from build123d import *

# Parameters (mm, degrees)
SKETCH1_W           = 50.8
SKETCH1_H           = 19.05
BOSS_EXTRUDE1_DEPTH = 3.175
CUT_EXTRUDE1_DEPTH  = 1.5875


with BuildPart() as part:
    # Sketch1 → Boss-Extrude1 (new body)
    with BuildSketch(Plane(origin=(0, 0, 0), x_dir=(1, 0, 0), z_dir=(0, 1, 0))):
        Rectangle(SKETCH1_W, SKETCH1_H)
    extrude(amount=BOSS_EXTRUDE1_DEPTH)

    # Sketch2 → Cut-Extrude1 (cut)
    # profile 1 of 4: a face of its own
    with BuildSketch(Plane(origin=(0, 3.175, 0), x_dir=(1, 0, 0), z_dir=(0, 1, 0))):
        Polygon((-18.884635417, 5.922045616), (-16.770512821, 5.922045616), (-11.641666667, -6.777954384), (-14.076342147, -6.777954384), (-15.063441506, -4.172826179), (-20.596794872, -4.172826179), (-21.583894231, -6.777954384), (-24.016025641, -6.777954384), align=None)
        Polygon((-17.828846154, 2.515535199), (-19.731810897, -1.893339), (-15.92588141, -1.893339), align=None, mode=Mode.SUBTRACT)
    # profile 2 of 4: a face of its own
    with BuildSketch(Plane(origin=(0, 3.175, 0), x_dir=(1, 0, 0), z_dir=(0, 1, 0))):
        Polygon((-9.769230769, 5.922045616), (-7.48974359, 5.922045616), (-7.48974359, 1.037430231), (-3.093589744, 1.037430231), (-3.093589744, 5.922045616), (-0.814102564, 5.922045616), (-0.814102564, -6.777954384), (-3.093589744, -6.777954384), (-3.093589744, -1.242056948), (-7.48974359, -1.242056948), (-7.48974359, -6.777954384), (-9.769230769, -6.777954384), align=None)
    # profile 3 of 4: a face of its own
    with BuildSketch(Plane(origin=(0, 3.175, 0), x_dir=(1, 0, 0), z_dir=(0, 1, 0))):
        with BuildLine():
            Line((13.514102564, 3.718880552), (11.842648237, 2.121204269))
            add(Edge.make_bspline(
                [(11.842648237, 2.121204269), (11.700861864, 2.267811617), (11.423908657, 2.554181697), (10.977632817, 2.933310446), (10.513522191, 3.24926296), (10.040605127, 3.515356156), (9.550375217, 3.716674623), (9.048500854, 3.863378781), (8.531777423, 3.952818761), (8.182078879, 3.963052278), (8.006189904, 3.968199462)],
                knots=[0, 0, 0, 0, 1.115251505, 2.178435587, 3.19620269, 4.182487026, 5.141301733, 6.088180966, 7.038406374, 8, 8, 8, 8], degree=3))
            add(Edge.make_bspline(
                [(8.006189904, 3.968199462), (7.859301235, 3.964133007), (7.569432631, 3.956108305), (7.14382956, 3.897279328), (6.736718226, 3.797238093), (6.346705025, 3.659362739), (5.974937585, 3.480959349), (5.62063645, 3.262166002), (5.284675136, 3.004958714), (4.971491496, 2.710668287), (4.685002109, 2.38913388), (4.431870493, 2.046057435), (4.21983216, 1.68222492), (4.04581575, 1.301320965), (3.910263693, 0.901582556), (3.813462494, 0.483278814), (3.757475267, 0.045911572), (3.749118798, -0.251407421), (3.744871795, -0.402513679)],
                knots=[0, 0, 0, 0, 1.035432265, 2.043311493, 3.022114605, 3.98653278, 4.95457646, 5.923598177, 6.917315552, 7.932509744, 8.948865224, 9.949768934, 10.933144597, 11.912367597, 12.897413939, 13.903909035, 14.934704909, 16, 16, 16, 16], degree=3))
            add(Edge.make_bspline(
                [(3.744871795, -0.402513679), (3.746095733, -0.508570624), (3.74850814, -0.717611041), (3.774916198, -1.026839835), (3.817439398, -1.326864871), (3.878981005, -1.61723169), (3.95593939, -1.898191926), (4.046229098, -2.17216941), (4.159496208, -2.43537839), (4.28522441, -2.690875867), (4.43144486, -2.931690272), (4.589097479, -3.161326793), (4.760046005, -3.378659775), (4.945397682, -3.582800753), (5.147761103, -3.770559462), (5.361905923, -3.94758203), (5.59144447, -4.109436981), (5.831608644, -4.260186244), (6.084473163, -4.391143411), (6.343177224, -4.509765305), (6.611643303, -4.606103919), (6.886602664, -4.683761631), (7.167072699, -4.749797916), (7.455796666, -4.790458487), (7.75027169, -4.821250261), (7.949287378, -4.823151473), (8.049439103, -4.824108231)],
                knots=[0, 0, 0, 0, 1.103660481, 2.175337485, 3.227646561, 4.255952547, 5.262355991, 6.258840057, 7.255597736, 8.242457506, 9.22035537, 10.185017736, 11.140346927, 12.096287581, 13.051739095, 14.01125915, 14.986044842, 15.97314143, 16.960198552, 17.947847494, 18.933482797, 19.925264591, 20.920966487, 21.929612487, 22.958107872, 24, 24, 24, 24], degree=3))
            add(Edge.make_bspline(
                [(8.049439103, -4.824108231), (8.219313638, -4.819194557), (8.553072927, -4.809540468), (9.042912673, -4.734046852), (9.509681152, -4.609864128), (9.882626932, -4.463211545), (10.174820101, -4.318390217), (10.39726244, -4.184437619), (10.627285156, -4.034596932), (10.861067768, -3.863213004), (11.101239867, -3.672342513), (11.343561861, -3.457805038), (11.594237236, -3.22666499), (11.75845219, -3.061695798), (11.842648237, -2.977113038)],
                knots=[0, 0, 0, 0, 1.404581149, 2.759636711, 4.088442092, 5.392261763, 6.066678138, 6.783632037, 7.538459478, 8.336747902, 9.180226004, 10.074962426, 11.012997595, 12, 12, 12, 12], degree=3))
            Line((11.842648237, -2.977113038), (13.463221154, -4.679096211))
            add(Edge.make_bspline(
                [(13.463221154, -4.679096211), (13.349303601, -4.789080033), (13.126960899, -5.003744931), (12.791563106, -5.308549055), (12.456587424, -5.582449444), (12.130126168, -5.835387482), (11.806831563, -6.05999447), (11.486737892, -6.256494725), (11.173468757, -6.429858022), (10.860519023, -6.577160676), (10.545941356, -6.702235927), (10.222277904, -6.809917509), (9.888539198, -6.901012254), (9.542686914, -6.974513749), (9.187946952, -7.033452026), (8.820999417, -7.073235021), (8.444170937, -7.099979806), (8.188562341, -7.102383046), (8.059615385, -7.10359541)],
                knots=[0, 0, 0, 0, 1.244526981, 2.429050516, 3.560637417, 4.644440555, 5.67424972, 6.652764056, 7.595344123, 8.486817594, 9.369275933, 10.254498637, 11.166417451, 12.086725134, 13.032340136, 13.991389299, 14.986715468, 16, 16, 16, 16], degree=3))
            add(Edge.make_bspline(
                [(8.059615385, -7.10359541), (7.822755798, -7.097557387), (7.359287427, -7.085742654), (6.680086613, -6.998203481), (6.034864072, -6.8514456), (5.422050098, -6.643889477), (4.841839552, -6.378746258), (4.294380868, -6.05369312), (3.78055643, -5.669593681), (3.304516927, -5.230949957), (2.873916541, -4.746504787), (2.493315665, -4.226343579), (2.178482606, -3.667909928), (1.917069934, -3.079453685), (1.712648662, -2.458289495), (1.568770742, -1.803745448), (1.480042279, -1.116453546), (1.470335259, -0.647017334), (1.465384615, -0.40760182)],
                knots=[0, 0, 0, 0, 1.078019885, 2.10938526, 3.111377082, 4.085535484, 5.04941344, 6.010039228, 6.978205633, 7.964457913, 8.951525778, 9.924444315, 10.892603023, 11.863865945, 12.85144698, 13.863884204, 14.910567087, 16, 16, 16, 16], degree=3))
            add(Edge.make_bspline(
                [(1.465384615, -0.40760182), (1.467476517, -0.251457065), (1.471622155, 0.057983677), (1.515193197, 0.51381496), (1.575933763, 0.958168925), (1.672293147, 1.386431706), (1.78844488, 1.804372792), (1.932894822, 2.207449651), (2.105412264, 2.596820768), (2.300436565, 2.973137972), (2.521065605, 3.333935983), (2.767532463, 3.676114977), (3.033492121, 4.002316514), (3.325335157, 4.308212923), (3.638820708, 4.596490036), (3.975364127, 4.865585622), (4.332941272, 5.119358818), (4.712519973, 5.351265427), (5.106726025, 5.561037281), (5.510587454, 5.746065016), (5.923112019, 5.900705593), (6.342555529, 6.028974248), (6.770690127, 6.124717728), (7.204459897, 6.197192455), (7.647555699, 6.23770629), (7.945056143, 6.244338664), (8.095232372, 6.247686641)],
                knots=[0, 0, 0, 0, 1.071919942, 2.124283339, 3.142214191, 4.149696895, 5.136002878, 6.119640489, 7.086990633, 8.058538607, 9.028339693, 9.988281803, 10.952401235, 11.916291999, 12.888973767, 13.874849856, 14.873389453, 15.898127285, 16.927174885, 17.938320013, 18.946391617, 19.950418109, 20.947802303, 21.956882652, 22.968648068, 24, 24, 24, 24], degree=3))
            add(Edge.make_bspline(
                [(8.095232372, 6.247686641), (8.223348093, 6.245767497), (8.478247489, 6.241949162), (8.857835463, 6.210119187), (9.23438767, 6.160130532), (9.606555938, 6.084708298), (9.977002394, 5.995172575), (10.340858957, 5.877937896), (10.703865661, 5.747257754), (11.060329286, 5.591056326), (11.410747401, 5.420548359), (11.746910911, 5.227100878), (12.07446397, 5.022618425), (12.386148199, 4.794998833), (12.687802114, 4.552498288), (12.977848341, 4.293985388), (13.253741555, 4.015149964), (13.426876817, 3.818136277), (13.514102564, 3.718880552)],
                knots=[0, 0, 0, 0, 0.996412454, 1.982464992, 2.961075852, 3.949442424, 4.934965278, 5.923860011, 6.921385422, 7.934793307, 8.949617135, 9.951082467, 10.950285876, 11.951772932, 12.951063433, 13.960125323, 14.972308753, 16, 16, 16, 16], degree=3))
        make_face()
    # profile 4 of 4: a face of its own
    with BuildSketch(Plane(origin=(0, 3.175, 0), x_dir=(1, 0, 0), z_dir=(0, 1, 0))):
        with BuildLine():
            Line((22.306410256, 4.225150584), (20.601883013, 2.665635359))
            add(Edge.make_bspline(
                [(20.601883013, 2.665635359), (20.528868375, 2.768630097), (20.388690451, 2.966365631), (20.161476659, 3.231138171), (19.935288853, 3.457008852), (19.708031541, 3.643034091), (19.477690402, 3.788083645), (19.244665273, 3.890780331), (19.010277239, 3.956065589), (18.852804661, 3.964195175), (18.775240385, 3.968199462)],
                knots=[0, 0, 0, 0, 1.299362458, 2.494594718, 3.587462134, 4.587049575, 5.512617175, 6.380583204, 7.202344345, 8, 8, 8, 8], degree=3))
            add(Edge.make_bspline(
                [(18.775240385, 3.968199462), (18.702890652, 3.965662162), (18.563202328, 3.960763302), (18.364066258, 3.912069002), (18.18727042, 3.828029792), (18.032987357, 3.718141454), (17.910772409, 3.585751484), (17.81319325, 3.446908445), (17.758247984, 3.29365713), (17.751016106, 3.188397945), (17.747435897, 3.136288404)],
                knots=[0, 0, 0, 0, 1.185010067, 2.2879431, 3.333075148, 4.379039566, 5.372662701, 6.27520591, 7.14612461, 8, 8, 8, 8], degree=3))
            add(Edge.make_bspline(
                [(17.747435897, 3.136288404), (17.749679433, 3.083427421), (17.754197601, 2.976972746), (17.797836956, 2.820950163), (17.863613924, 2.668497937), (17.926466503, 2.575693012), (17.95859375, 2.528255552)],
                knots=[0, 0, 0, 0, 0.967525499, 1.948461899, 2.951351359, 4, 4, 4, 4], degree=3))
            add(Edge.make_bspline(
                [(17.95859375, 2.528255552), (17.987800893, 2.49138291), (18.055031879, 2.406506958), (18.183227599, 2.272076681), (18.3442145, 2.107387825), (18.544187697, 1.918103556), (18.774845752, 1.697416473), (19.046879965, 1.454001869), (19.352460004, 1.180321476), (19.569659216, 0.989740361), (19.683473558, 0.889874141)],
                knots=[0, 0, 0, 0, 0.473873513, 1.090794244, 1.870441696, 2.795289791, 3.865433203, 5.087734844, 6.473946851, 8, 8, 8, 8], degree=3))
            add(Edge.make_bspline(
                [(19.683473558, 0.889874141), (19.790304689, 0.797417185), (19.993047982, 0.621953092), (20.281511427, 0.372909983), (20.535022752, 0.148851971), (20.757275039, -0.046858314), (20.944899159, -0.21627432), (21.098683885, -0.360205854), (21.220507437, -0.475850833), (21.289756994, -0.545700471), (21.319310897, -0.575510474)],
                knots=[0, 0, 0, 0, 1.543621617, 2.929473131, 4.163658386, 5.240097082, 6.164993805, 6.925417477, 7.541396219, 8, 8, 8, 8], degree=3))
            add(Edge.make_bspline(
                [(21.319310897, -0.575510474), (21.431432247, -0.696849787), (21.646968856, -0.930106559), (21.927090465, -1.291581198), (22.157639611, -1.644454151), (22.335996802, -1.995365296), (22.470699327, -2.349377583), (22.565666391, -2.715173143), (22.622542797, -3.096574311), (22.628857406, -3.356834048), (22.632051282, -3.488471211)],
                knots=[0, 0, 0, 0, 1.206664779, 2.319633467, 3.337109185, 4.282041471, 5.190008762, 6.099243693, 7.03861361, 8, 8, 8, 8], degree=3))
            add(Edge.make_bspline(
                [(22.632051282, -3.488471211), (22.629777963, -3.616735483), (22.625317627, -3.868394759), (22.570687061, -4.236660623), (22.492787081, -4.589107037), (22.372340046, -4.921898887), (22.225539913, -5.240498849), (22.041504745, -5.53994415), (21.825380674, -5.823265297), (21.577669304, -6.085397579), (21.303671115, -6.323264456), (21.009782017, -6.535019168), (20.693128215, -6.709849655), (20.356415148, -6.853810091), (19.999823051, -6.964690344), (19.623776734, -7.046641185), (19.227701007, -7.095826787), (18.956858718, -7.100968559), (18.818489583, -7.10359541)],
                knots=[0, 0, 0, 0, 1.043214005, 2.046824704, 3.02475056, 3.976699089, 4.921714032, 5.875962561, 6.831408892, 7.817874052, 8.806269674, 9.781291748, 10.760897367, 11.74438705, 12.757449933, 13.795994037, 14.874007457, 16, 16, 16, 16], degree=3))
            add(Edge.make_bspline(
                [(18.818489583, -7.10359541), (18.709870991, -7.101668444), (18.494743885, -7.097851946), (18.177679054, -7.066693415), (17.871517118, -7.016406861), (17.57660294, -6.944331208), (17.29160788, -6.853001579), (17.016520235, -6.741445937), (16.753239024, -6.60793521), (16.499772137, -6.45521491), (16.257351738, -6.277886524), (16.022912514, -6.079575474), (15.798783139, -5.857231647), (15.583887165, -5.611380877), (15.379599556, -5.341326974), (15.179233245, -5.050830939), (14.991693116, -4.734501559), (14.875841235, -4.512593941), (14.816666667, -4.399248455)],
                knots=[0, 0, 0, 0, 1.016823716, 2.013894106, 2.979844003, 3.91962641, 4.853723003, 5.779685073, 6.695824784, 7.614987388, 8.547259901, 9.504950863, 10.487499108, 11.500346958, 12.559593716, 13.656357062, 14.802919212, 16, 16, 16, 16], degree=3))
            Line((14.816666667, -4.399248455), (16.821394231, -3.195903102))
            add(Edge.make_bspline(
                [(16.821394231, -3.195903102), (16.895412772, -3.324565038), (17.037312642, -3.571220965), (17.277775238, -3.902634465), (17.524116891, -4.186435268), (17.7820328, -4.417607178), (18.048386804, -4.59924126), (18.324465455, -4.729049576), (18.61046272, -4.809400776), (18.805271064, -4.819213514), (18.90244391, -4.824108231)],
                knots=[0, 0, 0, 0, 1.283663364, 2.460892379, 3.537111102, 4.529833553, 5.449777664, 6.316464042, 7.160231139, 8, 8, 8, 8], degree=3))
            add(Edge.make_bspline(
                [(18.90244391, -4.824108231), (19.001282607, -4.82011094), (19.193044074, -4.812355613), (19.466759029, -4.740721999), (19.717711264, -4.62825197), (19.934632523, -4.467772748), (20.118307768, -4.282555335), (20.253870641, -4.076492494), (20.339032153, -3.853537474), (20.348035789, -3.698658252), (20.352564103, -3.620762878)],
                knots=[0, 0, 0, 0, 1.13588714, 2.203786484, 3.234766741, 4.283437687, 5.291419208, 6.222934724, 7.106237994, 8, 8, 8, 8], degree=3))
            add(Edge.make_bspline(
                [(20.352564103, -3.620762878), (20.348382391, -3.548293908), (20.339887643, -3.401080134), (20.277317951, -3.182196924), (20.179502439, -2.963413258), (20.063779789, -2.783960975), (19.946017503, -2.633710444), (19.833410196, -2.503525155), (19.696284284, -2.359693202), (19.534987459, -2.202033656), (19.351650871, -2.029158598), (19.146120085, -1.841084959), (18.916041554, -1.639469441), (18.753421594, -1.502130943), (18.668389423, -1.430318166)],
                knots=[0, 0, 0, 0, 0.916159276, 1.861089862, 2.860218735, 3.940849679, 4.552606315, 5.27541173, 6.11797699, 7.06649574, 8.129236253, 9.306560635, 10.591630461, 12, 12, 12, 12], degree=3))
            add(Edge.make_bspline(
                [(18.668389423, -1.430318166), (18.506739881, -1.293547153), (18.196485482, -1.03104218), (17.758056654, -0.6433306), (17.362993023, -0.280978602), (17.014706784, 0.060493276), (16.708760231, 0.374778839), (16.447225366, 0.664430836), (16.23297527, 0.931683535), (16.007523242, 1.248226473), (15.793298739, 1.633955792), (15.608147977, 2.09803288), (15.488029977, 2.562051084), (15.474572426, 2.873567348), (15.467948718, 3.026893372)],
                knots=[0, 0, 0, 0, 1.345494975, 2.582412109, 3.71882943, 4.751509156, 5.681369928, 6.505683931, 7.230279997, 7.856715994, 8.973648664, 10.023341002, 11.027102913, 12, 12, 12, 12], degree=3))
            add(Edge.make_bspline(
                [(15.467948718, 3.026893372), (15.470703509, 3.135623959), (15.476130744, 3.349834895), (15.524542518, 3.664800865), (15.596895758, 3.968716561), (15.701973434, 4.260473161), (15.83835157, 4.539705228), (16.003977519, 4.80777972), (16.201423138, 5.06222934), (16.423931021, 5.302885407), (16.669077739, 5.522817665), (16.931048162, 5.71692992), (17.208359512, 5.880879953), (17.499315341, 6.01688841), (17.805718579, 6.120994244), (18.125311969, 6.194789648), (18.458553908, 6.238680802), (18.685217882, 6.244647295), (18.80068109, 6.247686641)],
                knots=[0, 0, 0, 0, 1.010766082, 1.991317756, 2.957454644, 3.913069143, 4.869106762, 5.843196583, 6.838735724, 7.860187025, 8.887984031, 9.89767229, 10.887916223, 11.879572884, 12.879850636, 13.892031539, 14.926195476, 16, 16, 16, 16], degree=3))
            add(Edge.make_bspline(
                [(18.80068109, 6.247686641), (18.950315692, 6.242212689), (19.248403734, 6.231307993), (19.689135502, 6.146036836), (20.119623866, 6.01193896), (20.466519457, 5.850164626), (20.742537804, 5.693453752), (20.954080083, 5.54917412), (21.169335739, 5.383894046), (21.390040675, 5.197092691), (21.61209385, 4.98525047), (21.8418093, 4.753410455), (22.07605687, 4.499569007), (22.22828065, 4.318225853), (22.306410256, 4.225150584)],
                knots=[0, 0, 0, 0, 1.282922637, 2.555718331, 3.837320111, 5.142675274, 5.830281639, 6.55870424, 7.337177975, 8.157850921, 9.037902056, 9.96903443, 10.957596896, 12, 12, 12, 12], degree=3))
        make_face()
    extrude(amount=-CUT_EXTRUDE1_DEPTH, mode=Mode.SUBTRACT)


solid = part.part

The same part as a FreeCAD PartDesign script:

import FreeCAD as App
import Part
import Sketcher

V = App.Vector
Q = App.Units.Quantity

doc = App.newDocument("Part")
body = doc.addObject("PartDesign::Body", "Body")

# Sketch on XZ plane
sketch1 = body.newObject("Sketcher::SketchObject", "Sketch")
sketch1.AttachmentSupport = (doc.getObject("XZ_Plane"), [""])
sketch1.MapMode = "FlatFace"
sketch1.addGeometry([
    Part.LineSegment(V(-25.4, -9.525, 0), V(-25.4, 9.525, 0)),
    Part.LineSegment(V(-25.4, 9.525, 0), V(25.4, 9.525, 0)),
    Part.LineSegment(V(25.4, 9.525, 0), V(25.4, -9.525, 0)),
    Part.LineSegment(V(25.4, -9.525, 0), V(-25.4, -9.525, 0)),
], False)
sketch1.addConstraint([
    Sketcher.Constraint("Coincident", 0, 2, 1, 1),
    Sketcher.Constraint("Coincident", 1, 2, 2, 1),
    Sketcher.Constraint("Coincident", 2, 2, 3, 1),
    Sketcher.Constraint("Coincident", 3, 2, 0, 1),
    Sketcher.Constraint("Vertical", 0),
    Sketcher.Constraint("Horizontal", 1),
    Sketcher.Constraint("Vertical", 2),
    Sketcher.Constraint("Horizontal", 3),
    Sketcher.Constraint("Symmetric", 0, 2, 2, 2, -1, 1),
    Sketcher.Constraint("DistanceX", 1, 1, 1, 2, Q("2 in")),
    Sketcher.Constraint("DistanceY", 0, 1, 0, 2, Q("0.75 in")),
])
pad1 = body.newObject("PartDesign::Pad", "Pad")
pad1.Profile = sketch1
pad1.Length = Q("0.125 in")
pad1.Reversed = True

# Sketch on XZ plane
sketch2 = body.newObject("Sketcher::SketchObject", "Sketch001")
sketch2.AttachmentSupport = (doc.getObject("XZ_Plane"), [""])
sketch2.MapMode = "FlatFace"
sketch2.AttachmentOffset = App.Placement(V(0, 0, -0.125 * 25.4), App.Rotation())
sketch2.addGeometry([
    Part.LineSegment(V(-16.770513, -5.922046, 0), V(-18.884635, -5.922046, 0)),  # 0
    Part.LineSegment(V(-18.884635, -5.922046, 0), V(-24.016026, 6.777954, 0)),  # 1
    Part.LineSegment(V(-24.016026, 6.777954, 0), V(-21.583894, 6.777954, 0)),  # 2
    Part.LineSegment(V(-21.583894, 6.777954, 0), V(-20.596795, 4.172826, 0)),  # 3
    Part.LineSegment(V(-20.596795, 4.172826, 0), V(-15.063442, 4.172826, 0)),  # 4
    Part.LineSegment(V(-15.063442, 4.172826, 0), V(-14.076342, 6.777954, 0)),  # 5
    Part.LineSegment(V(-14.076342, 6.777954, 0), V(-11.641667, 6.777954, 0)),  # 6
    Part.LineSegment(V(-11.641667, 6.777954, 0), V(-16.770513, -5.922046, 0)),  # 7
    Part.LineSegment(V(-17.828846, -2.515535, 0), V(-15.925881, 1.893339, 0)),  # 8
    Part.LineSegment(V(-15.925881, 1.893339, 0), V(-19.731811, 1.893339, 0)),  # 9
    Part.LineSegment(V(-19.731811, 1.893339, 0), V(-17.828846, -2.515535, 0)),  # 10
    Part.LineSegment(V(-7.489744, -5.922046, 0), V(-9.769231, -5.922046, 0)),  # 11
    Part.LineSegment(V(-9.769231, -5.922046, 0), V(-9.769231, 6.777954, 0)),  # 12
    Part.LineSegment(V(-9.769231, 6.777954, 0), V(-7.489744, 6.777954, 0)),  # 13
    Part.LineSegment(V(-7.489744, 6.777954, 0), V(-7.489744, 1.242057, 0)),  # 14
    Part.LineSegment(V(-7.489744, 1.242057, 0), V(-3.09359, 1.242057, 0)),  # 15
    Part.LineSegment(V(-3.09359, 1.242057, 0), V(-3.09359, 6.777954, 0)),  # 16
    Part.LineSegment(V(-3.09359, 6.777954, 0), V(-0.814103, 6.777954, 0)),  # 17
    Part.LineSegment(V(-0.814103, 6.777954, 0), V(-0.814103, -5.922046, 0)),  # 18
    Part.LineSegment(V(-0.814103, -5.922046, 0), V(-3.09359, -5.922046, 0)),  # 19
    Part.LineSegment(V(-3.09359, -5.922046, 0), V(-3.09359, -1.03743, 0)),  # 20
    Part.LineSegment(V(-3.09359, -1.03743, 0), V(-7.489744, -1.03743, 0)),  # 21
    Part.LineSegment(V(-7.489744, -1.03743, 0), V(-7.489744, -5.922046, 0)),  # 22
    Part.LineSegment(V(11.842648, -2.121204, 0), V(13.514103, -3.718881, 0)),  # 23
    Part.BSplineCurve([V(8.095232, -6.247687, 0), V(8.223348, -6.245767, 0), V(8.478247, -6.241949, 0), V(8.857835, -6.210119, 0), V(9.234388, -6.160131, 0), V(9.606556, -6.084708, 0), V(9.977002, -5.995173, 0), V(10.340859, -5.877938, 0), V(10.703866, -5.747258, 0), V(11.060329, -5.591056, 0), V(11.410747, -5.420548, 0), V(11.746911, -5.227101, 0), V(12.074464, -5.022618, 0), V(12.386148, -4.794999, 0), V(12.687802, -4.552498, 0), V(12.977848, -4.293985, 0), V(13.253742, -4.01515, 0), V(13.426877, -3.818136, 0), V(13.514103, -3.718881, 0)], [4, 1, 1, 1, 1, 1, 1, 1, 1, 1, 1, 1, 1, 1, 1, 1, 4], [0, 0.996412454, 1.982464992, 2.961075852, 3.949442424, 4.934965278, 5.923860011, 6.921385422, 7.934793307, 8.949617135, 9.951082467, 10.950285876, 11.951772932, 12.951063433, 13.960125323, 14.972308753, 16], False, 3, [1, 1, 1, 1, 1, 1, 1, 1, 1, 1, 1, 1, 1, 1, 1, 1, 1, 1, 1], False),  # 24
    Part.BSplineCurve([V(1.465385, 0.407602, 0), V(1.467477, 0.251457, 0), V(1.471622, -0.057984, 0), V(1.515193, -0.513815, 0), V(1.575934, -0.958169, 0), V(1.672293, -1.386432, 0), V(1.788445, -1.804373, 0), V(1.932895, -2.20745, 0), V(2.105412, -2.596821, 0), V(2.300437, -2.973138, 0), V(2.521066, -3.333936, 0), V(2.767532, -3.676115, 0), V(3.033492, -4.002317, 0), V(3.325335, -4.308213, 0), V(3.638821, -4.59649, 0), V(3.975364, -4.865586, 0), V(4.332941, -5.119359, 0), V(4.71252, -5.351265, 0), V(5.106726, -5.561037, 0), V(5.510587, -5.746065, 0), V(5.923112, -5.900706, 0), V(6.342556, -6.028974, 0), V(6.77069, -6.124718, 0), V(7.20446, -6.197192, 0), V(7.647556, -6.237706, 0), V(7.945056, -6.244339, 0), V(8.095232, -6.247687, 0)], [4, 1, 1, 1, 1, 1, 1, 1, 1, 1, 1, 1, 1, 1, 1, 1, 1, 1, 1, 1, 1, 1, 1, 1, 4], [0, 1.071919942, 2.124283339, 3.142214191, 4.149696895, 5.136002878, 6.119640489, 7.086990633, 8.058538607, 9.028339693, 9.988281803, 10.952401235, 11.916291999, 12.888973767, 13.874849856, 14.873389453, 15.898127285, 16.927174885, 17.938320013, 18.946391617, 19.950418109, 20.947802303, 21.956882652, 22.968648068, 24], False, 3, [1, 1, 1, 1, 1, 1, 1, 1, 1, 1, 1, 1, 1, 1, 1, 1, 1, 1, 1, 1, 1, 1, 1, 1, 1, 1, 1], False),  # 25
    Part.BSplineCurve([V(8.059615, 7.103595, 0), V(7.822756, 7.097557, 0), V(7.359287, 7.085743, 0), V(6.680087, 6.998203, 0), V(6.034864, 6.851446, 0), V(5.42205, 6.643889, 0), V(4.84184, 6.378746, 0), V(4.294381, 6.053693, 0), V(3.780556, 5.669594, 0), V(3.304517, 5.23095, 0), V(2.873917, 4.746505, 0), V(2.493316, 4.226344, 0), V(2.178483, 3.66791, 0), V(1.91707, 3.079454, 0), V(1.712649, 2.458289, 0), V(1.568771, 1.803745, 0), V(1.480042, 1.116454, 0), V(1.470335, 0.647017, 0), V(1.465385, 0.407602, 0)], [4, 1, 1, 1, 1, 1, 1, 1, 1, 1, 1, 1, 1, 1, 1, 1, 4], [0, 1.078019885, 2.10938526, 3.111377082, 4.085535484, 5.04941344, 6.010039228, 6.978205633, 7.964457913, 8.951525778, 9.924444315, 10.892603023, 11.863865945, 12.85144698, 13.863884204, 14.910567087, 16], False, 3, [1, 1, 1, 1, 1, 1, 1, 1, 1, 1, 1, 1, 1, 1, 1, 1, 1, 1, 1], False),  # 26
    Part.BSplineCurve([V(13.463221, 4.679096, 0), V(13.349304, 4.78908, 0), V(13.126961, 5.003745, 0), V(12.791563, 5.308549, 0), V(12.456587, 5.582449, 0), V(12.130126, 5.835387, 0), V(11.806832, 6.059994, 0), V(11.486738, 6.256495, 0), V(11.173469, 6.429858, 0), V(10.860519, 6.577161, 0), V(10.545941, 6.702236, 0), V(10.222278, 6.809918, 0), V(9.888539, 6.901012, 0), V(9.542687, 6.974514, 0), V(9.187947, 7.033452, 0), V(8.820999, 7.073235, 0), V(8.444171, 7.09998, 0), V(8.188562, 7.102383, 0), V(8.059615, 7.103595, 0)], [4, 1, 1, 1, 1, 1, 1, 1, 1, 1, 1, 1, 1, 1, 1, 1, 4], [0, 1.244526981, 2.429050516, 3.560637417, 4.644440555, 5.67424972, 6.652764056, 7.595344123, 8.486817594, 9.369275933, 10.254498637, 11.166417451, 12.086725134, 13.032340136, 13.991389299, 14.986715468, 16], False, 3, [1, 1, 1, 1, 1, 1, 1, 1, 1, 1, 1, 1, 1, 1, 1, 1, 1, 1, 1], False),  # 27
    Part.LineSegment(V(13.463221, 4.679096, 0), V(11.842648, 2.977113, 0)),  # 28
    Part.BSplineCurve([V(8.049439, 4.824108, 0), V(8.219314, 4.819195, 0), V(8.553073, 4.80954, 0), V(9.042913, 4.734047, 0), V(9.509681, 4.609864, 0), V(9.882627, 4.463212, 0), V(10.17482, 4.31839, 0), V(10.397262, 4.184438, 0), V(10.627285, 4.034597, 0), V(10.861068, 3.863213, 0), V(11.10124, 3.672343, 0), V(11.343562, 3.457805, 0), V(11.594237, 3.226665, 0), V(11.758452, 3.061696, 0), V(11.842648, 2.977113, 0)], [4, 1, 1, 1, 1, 1, 1, 1, 1, 1, 1, 1, 4], [0, 1.404581149, 2.759636711, 4.088442092, 5.392261763, 6.066678138, 6.783632037, 7.538459478, 8.336747902, 9.180226004, 10.074962426, 11.012997595, 12], False, 3, [1, 1, 1, 1, 1, 1, 1, 1, 1, 1, 1, 1, 1, 1, 1], False),  # 29
    Part.BSplineCurve([V(3.744872, 0.402514, 0), V(3.746096, 0.508571, 0), V(3.748508, 0.717611, 0), V(3.774916, 1.02684, 0), V(3.817439, 1.326865, 0), V(3.878981, 1.617232, 0), V(3.955939, 1.898192, 0), V(4.046229, 2.172169, 0), V(4.159496, 2.435378, 0), V(4.285224, 2.690876, 0), V(4.431445, 2.93169, 0), V(4.589097, 3.161327, 0), V(4.760046, 3.37866, 0), V(4.945398, 3.582801, 0), V(5.147761, 3.770559, 0), V(5.361906, 3.947582, 0), V(5.591444, 4.109437, 0), V(5.831609, 4.260186, 0), V(6.084473, 4.391143, 0), V(6.343177, 4.509765, 0), V(6.611643, 4.606104, 0), V(6.886603, 4.683762, 0), V(7.167073, 4.749798, 0), V(7.455797, 4.790458, 0), V(7.750272, 4.82125, 0), V(7.949287, 4.823151, 0), V(8.049439, 4.824108, 0)], [4, 1, 1, 1, 1, 1, 1, 1, 1, 1, 1, 1, 1, 1, 1, 1, 1, 1, 1, 1, 1, 1, 1, 1, 4], [0, 1.103660481, 2.175337485, 3.227646561, 4.255952547, 5.262355991, 6.258840057, 7.255597736, 8.242457506, 9.22035537, 10.185017736, 11.140346927, 12.096287581, 13.051739095, 14.01125915, 14.986044842, 15.97314143, 16.960198552, 17.947847494, 18.933482797, 19.925264591, 20.920966487, 21.929612487, 22.958107872, 24], False, 3, [1, 1, 1, 1, 1, 1, 1, 1, 1, 1, 1, 1, 1, 1, 1, 1, 1, 1, 1, 1, 1, 1, 1, 1, 1, 1, 1], False),  # 30
    Part.BSplineCurve([V(8.00619, -3.968199, 0), V(7.859301, -3.964133, 0), V(7.569433, -3.956108, 0), V(7.14383, -3.897279, 0), V(6.736718, -3.797238, 0), V(6.346705, -3.659363, 0), V(5.974938, -3.480959, 0), V(5.620636, -3.262166, 0), V(5.284675, -3.004959, 0), V(4.971491, -2.710668, 0), V(4.685002, -2.389134, 0), V(4.43187, -2.046057, 0), V(4.219832, -1.682225, 0), V(4.045816, -1.301321, 0), V(3.910264, -0.901583, 0), V(3.813462, -0.483279, 0), V(3.757475, -0.045912, 0), V(3.749119, 0.251407, 0), V(3.744872, 0.402514, 0)], [4, 1, 1, 1, 1, 1, 1, 1, 1, 1, 1, 1, 1, 1, 1, 1, 4], [0, 1.035432265, 2.043311493, 3.022114605, 3.98653278, 4.95457646, 5.923598177, 6.917315552, 7.932509744, 8.948865224, 9.949768934, 10.933144597, 11.912367597, 12.897413939, 13.903909035, 14.934704909, 16], False, 3, [1, 1, 1, 1, 1, 1, 1, 1, 1, 1, 1, 1, 1, 1, 1, 1, 1, 1, 1], False),  # 31
    Part.BSplineCurve([V(11.842648, -2.121204, 0), V(11.700862, -2.267812, 0), V(11.423909, -2.554182, 0), V(10.977633, -2.93331, 0), V(10.513522, -3.249263, 0), V(10.040605, -3.515356, 0), V(9.550375, -3.716675, 0), V(9.048501, -3.863379, 0), V(8.531777, -3.952819, 0), V(8.182079, -3.963052, 0), V(8.00619, -3.968199, 0)], [4, 1, 1, 1, 1, 1, 1, 1, 4], [0, 1.115251505, 2.178435587, 3.19620269, 4.182487026, 5.141301733, 6.088180966, 7.038406374, 8], False, 3, [1, 1, 1, 1, 1, 1, 1, 1, 1, 1, 1], False),  # 32
    Part.LineSegment(V(20.601883, -2.665635, 0), V(22.30641, -4.225151, 0)),  # 33
    Part.BSplineCurve([V(18.800681, -6.247687, 0), V(18.950316, -6.242213, 0), V(19.248404, -6.231308, 0), V(19.689136, -6.146037, 0), V(20.119624, -6.011939, 0), V(20.466519, -5.850165, 0), V(20.742538, -5.693454, 0), V(20.95408, -5.549174, 0), V(21.169336, -5.383894, 0), V(21.390041, -5.197093, 0), V(21.612094, -4.98525, 0), V(21.841809, -4.75341, 0), V(22.076057, -4.499569, 0), V(22.228281, -4.318226, 0), V(22.30641, -4.225151, 0)], [4, 1, 1, 1, 1, 1, 1, 1, 1, 1, 1, 1, 4], [0, 1.282922637, 2.555718331, 3.837320111, 5.142675274, 5.830281639, 6.55870424, 7.337177975, 8.157850921, 9.037902056, 9.96903443, 10.957596896, 12], False, 3, [1, 1, 1, 1, 1, 1, 1, 1, 1, 1, 1, 1, 1, 1, 1], False),  # 34
    Part.BSplineCurve([V(15.467949, -3.026893, 0), V(15.470704, -3.135624, 0), V(15.476131, -3.349835, 0), V(15.524543, -3.664801, 0), V(15.596896, -3.968717, 0), V(15.701973, -4.260473, 0), V(15.838352, -4.539705, 0), V(16.003978, -4.80778, 0), V(16.201423, -5.062229, 0), V(16.423931, -5.302885, 0), V(16.669078, -5.522818, 0), V(16.931048, -5.71693, 0), V(17.20836, -5.88088, 0), V(17.499315, -6.016888, 0), V(17.805719, -6.120994, 0), V(18.125312, -6.19479, 0), V(18.458554, -6.238681, 0), V(18.685218, -6.244647, 0), V(18.800681, -6.247687, 0)], [4, 1, 1, 1, 1, 1, 1, 1, 1, 1, 1, 1, 1, 1, 1, 1, 4], [0, 1.010766082, 1.991317756, 2.957454644, 3.913069143, 4.869106762, 5.843196583, 6.838735724, 7.860187025, 8.887984031, 9.89767229, 10.887916223, 11.879572884, 12.879850636, 13.892031539, 14.926195476, 16], False, 3, [1, 1, 1, 1, 1, 1, 1, 1, 1, 1, 1, 1, 1, 1, 1, 1, 1, 1, 1], False),  # 35
    Part.BSplineCurve([V(18.668389, 1.430318, 0), V(18.50674, 1.293547, 0), V(18.196485, 1.031042, 0), V(17.758057, 0.643331, 0), V(17.362993, 0.280979, 0), V(17.014707, -0.060493, 0), V(16.70876, -0.374779, 0), V(16.447225, -0.664431, 0), V(16.232975, -0.931684, 0), V(16.007523, -1.248226, 0), V(15.793299, -1.633956, 0), V(15.608148, -2.098033, 0), V(15.48803, -2.562051, 0), V(15.474572, -2.873567, 0), V(15.467949, -3.026893, 0)], [4, 1, 1, 1, 1, 1, 1, 1, 1, 1, 1, 1, 4], [0, 1.345494975, 2.582412109, 3.71882943, 4.751509156, 5.681369928, 6.505683931, 7.230279997, 7.856715994, 8.973648664, 10.023341002, 11.027102913, 12], False, 3, [1, 1, 1, 1, 1, 1, 1, 1, 1, 1, 1, 1, 1, 1, 1], False),  # 36
    Part.BSplineCurve([V(20.352564, 3.620763, 0), V(20.348382, 3.548294, 0), V(20.339888, 3.40108, 0), V(20.277318, 3.182197, 0), V(20.179502, 2.963413, 0), V(20.06378, 2.783961, 0), V(19.946018, 2.63371, 0), V(19.83341, 2.503525, 0), V(19.696284, 2.359693, 0), V(19.534987, 2.202034, 0), V(19.351651, 2.029159, 0), V(19.14612, 1.841085, 0), V(18.916042, 1.639469, 0), V(18.753422, 1.502131, 0), V(18.668389, 1.430318, 0)], [4, 1, 1, 1, 1, 1, 1, 1, 1, 1, 1, 1, 4], [0, 0.916159276, 1.861089862, 2.860218735, 3.940849679, 4.552606315, 5.27541173, 6.11797699, 7.06649574, 8.129236253, 9.306560635, 10.591630461, 12], False, 3, [1, 1, 1, 1, 1, 1, 1, 1, 1, 1, 1, 1, 1, 1, 1], False),  # 37
    Part.BSplineCurve([V(18.902444, 4.824108, 0), V(19.001283, 4.820111, 0), V(19.193044, 4.812356, 0), V(19.466759, 4.740722, 0), V(19.717711, 4.628252, 0), V(19.934633, 4.467773, 0), V(20.118308, 4.282555, 0), V(20.253871, 4.076492, 0), V(20.339032, 3.853537, 0), V(20.348036, 3.698658, 0), V(20.352564, 3.620763, 0)], [4, 1, 1, 1, 1, 1, 1, 1, 4], [0, 1.13588714, 2.203786484, 3.234766741, 4.283437687, 5.291419208, 6.222934724, 7.106237994, 8], False, 3, [1, 1, 1, 1, 1, 1, 1, 1, 1, 1, 1], False),  # 38
    Part.BSplineCurve([V(16.821394, 3.195903, 0), V(16.895413, 3.324565, 0), V(17.037313, 3.571221, 0), V(17.277775, 3.902634, 0), V(17.524117, 4.186435, 0), V(17.782033, 4.417607, 0), V(18.048387, 4.599241, 0), V(18.324465, 4.72905, 0), V(18.610463, 4.809401, 0), V(18.805271, 4.819214, 0), V(18.902444, 4.824108, 0)], [4, 1, 1, 1, 1, 1, 1, 1, 4], [0, 1.283663364, 2.460892379, 3.537111102, 4.529833553, 5.449777664, 6.316464042, 7.160231139, 8], False, 3, [1, 1, 1, 1, 1, 1, 1, 1, 1, 1, 1], False),  # 39
    Part.LineSegment(V(16.821394, 3.195903, 0), V(14.816667, 4.399248, 0)),  # 40
    Part.BSplineCurve([V(18.81849, 7.103595, 0), V(18.709871, 7.101668, 0), V(18.494744, 7.097852, 0), V(18.177679, 7.066693, 0), V(17.871517, 7.016407, 0), V(17.576603, 6.944331, 0), V(17.291608, 6.853002, 0), V(17.01652, 6.741446, 0), V(16.753239, 6.607935, 0), V(16.499772, 6.455215, 0), V(16.257352, 6.277887, 0), V(16.022913, 6.079575, 0), V(15.798783, 5.857232, 0), V(15.583887, 5.611381, 0), V(15.3796, 5.341327, 0), V(15.179233, 5.050831, 0), V(14.991693, 4.734502, 0), V(14.875841, 4.512594, 0), V(14.816667, 4.399248, 0)], [4, 1, 1, 1, 1, 1, 1, 1, 1, 1, 1, 1, 1, 1, 1, 1, 4], [0, 1.016823716, 2.013894106, 2.979844003, 3.91962641, 4.853723003, 5.779685073, 6.695824784, 7.614987388, 8.547259901, 9.504950863, 10.487499108, 11.500346958, 12.559593716, 13.656357062, 14.802919212, 16], False, 3, [1, 1, 1, 1, 1, 1, 1, 1, 1, 1, 1, 1, 1, 1, 1, 1, 1, 1, 1], False),  # 41
    Part.BSplineCurve([V(22.632051, 3.488471, 0), V(22.629778, 3.616735, 0), V(22.625318, 3.868395, 0), V(22.570687, 4.236661, 0), V(22.492787, 4.589107, 0), V(22.37234, 4.921899, 0), V(22.22554, 5.240499, 0), V(22.041505, 5.539944, 0), V(21.825381, 5.823265, 0), V(21.577669, 6.085398, 0), V(21.303671, 6.323264, 0), V(21.009782, 6.535019, 0), V(20.693128, 6.70985, 0), V(20.356415, 6.85381, 0), V(19.999823, 6.96469, 0), V(19.623777, 7.046641, 0), V(19.227701, 7.095827, 0), V(18.956859, 7.100969, 0), V(18.81849, 7.103595, 0)], [4, 1, 1, 1, 1, 1, 1, 1, 1, 1, 1, 1, 1, 1, 1, 1, 4], [0, 1.043214005, 2.046824704, 3.02475056, 3.976699089, 4.921714032, 5.875962561, 6.831408892, 7.817874052, 8.806269674, 9.781291748, 10.760897367, 11.74438705, 12.757449933, 13.795994037, 14.874007457, 16], False, 3, [1, 1, 1, 1, 1, 1, 1, 1, 1, 1, 1, 1, 1, 1, 1, 1, 1, 1, 1], False),  # 42
    Part.BSplineCurve([V(21.319311, 0.57551, 0), V(21.431432, 0.69685, 0), V(21.646969, 0.930107, 0), V(21.92709, 1.291581, 0), V(22.15764, 1.644454, 0), V(22.335997, 1.995365, 0), V(22.470699, 2.349378, 0), V(22.565666, 2.715173, 0), V(22.622543, 3.096574, 0), V(22.628857, 3.356834, 0), V(22.632051, 3.488471, 0)], [4, 1, 1, 1, 1, 1, 1, 1, 4], [0, 1.206664779, 2.319633467, 3.337109185, 4.282041471, 5.190008762, 6.099243693, 7.03861361, 8], False, 3, [1, 1, 1, 1, 1, 1, 1, 1, 1, 1, 1], False),  # 43
    Part.BSplineCurve([V(19.683474, -0.889874, 0), V(19.790305, -0.797417, 0), V(19.993048, -0.621953, 0), V(20.281511, -0.37291, 0), V(20.535023, -0.148852, 0), V(20.757275, 0.046858, 0), V(20.944899, 0.216274, 0), V(21.098684, 0.360206, 0), V(21.220507, 0.475851, 0), V(21.289757, 0.5457, 0), V(21.319311, 0.57551, 0)], [4, 1, 1, 1, 1, 1, 1, 1, 4], [0, 1.543621617, 2.929473131, 4.163658386, 5.240097082, 6.164993805, 6.925417477, 7.541396219, 8], False, 3, [1, 1, 1, 1, 1, 1, 1, 1, 1, 1, 1], False),  # 44
    Part.BSplineCurve([V(17.958594, -2.528256, 0), V(17.987801, -2.491383, 0), V(18.055032, -2.406507, 0), V(18.183228, -2.272077, 0), V(18.344214, -2.107388, 0), V(18.544188, -1.918104, 0), V(18.774846, -1.697416, 0), V(19.04688, -1.454002, 0), V(19.35246, -1.180321, 0), V(19.569659, -0.98974, 0), V(19.683474, -0.889874, 0)], [4, 1, 1, 1, 1, 1, 1, 1, 4], [0, 0.473873513, 1.090794244, 1.870441696, 2.795289791, 3.865433203, 5.087734844, 6.473946851, 8], False, 3, [1, 1, 1, 1, 1, 1, 1, 1, 1, 1, 1], False),  # 45
    Part.BSplineCurve([V(17.747436, -3.136288, 0), V(17.749679, -3.083427, 0), V(17.754198, -2.976973, 0), V(17.797837, -2.82095, 0), V(17.863614, -2.668498, 0), V(17.926467, -2.575693, 0), V(17.958594, -2.528256, 0)], [4, 1, 1, 1, 4], [0, 0.967525499, 1.948461899, 2.951351359, 4], False, 3, [1, 1, 1, 1, 1, 1, 1], False),  # 46
    Part.BSplineCurve([V(18.77524, -3.968199, 0), V(18.702891, -3.965662, 0), V(18.563202, -3.960763, 0), V(18.364066, -3.912069, 0), V(18.18727, -3.82803, 0), V(18.032987, -3.718141, 0), V(17.910772, -3.585751, 0), V(17.813193, -3.446908, 0), V(17.758248, -3.293657, 0), V(17.751016, -3.188398, 0), V(17.747436, -3.136288, 0)], [4, 1, 1, 1, 1, 1, 1, 1, 4], [0, 1.185010067, 2.2879431, 3.333075148, 4.379039566, 5.372662701, 6.27520591, 7.14612461, 8], False, 3, [1, 1, 1, 1, 1, 1, 1, 1, 1, 1, 1], False),  # 47
    Part.BSplineCurve([V(20.601883, -2.665635, 0), V(20.528868, -2.76863, 0), V(20.38869, -2.966366, 0), V(20.161477, -3.231138, 0), V(19.935289, -3.457009, 0), V(19.708032, -3.643034, 0), V(19.47769, -3.788084, 0), V(19.244665, -3.89078, 0), V(19.010277, -3.956066, 0), V(18.852805, -3.964195, 0), V(18.77524, -3.968199, 0)], [4, 1, 1, 1, 1, 1, 1, 1, 4], [0, 1.299362458, 2.494594718, 3.587462134, 4.587049575, 5.512617175, 6.380583204, 7.202344345, 8], False, 3, [1, 1, 1, 1, 1, 1, 1, 1, 1, 1, 1], False),  # 48
], False)
sketch2.addConstraint([
    Sketcher.Constraint("Block", 24),
    Sketcher.Constraint("Block", 25),
    Sketcher.Constraint("Block", 26),
    Sketcher.Constraint("Block", 27),
    Sketcher.Constraint("Block", 29),
    Sketcher.Constraint("Block", 30),
    Sketcher.Constraint("Block", 31),
    Sketcher.Constraint("Block", 32),
    Sketcher.Constraint("Block", 34),
    Sketcher.Constraint("Block", 35),
    Sketcher.Constraint("Block", 36),
    Sketcher.Constraint("Block", 37),
    Sketcher.Constraint("Block", 38),
    Sketcher.Constraint("Block", 39),
    Sketcher.Constraint("Block", 41),
    Sketcher.Constraint("Block", 42),
    Sketcher.Constraint("Block", 43),
    Sketcher.Constraint("Block", 44),
    Sketcher.Constraint("Block", 45),
    Sketcher.Constraint("Block", 46),
    Sketcher.Constraint("Block", 47),
    Sketcher.Constraint("Block", 48),
    Sketcher.Constraint("Coincident", 0, 2, 1, 1),
    Sketcher.Constraint("Coincident", 1, 2, 2, 1),
    Sketcher.Constraint("Coincident", 2, 2, 3, 1),
    Sketcher.Constraint("Coincident", 3, 2, 4, 1),
    Sketcher.Constraint("Coincident", 4, 2, 5, 1),
    Sketcher.Constraint("Coincident", 5, 2, 6, 1),
    Sketcher.Constraint("Coincident", 6, 2, 7, 1),
    Sketcher.Constraint("Coincident", 7, 2, 0, 1),
    Sketcher.Constraint("Coincident", 8, 2, 9, 1),
    Sketcher.Constraint("Coincident", 9, 2, 10, 1),
    Sketcher.Constraint("Coincident", 10, 2, 8, 1),
    Sketcher.Constraint("Coincident", 11, 2, 12, 1),
    Sketcher.Constraint("Coincident", 12, 2, 13, 1),
    Sketcher.Constraint("Coincident", 13, 2, 14, 1),
    Sketcher.Constraint("Coincident", 14, 2, 15, 1),
    Sketcher.Constraint("Coincident", 15, 2, 16, 1),
    Sketcher.Constraint("Coincident", 16, 2, 17, 1),
    Sketcher.Constraint("Coincident", 17, 2, 18, 1),
    Sketcher.Constraint("Coincident", 18, 2, 19, 1),
    Sketcher.Constraint("Coincident", 19, 2, 20, 1),
    Sketcher.Constraint("Coincident", 20, 2, 21, 1),
    Sketcher.Constraint("Coincident", 21, 2, 22, 1),
    Sketcher.Constraint("Coincident", 22, 2, 11, 1),
    Sketcher.Constraint("Coincident", 23, 2, 24, 2),
    Sketcher.Constraint("Coincident", 27, 1, 28, 1),
    Sketcher.Constraint("Coincident", 28, 2, 29, 2),
    Sketcher.Constraint("Coincident", 32, 1, 23, 1),
    Sketcher.Constraint("Coincident", 33, 2, 34, 2),
    Sketcher.Constraint("Coincident", 39, 1, 40, 1),
    Sketcher.Constraint("Coincident", 40, 2, 41, 2),
    Sketcher.Constraint("Coincident", 48, 1, 33, 1),
    Sketcher.Constraint("Horizontal", 0),
    Sketcher.Constraint("Horizontal", 2),
    Sketcher.Constraint("Horizontal", 4),
    Sketcher.Constraint("Horizontal", 6),
    Sketcher.Constraint("Horizontal", 9),
    Sketcher.Constraint("Horizontal", 11),
    Sketcher.Constraint("Vertical", 12),
    Sketcher.Constraint("Horizontal", 13),
    Sketcher.Constraint("Vertical", 14),
    Sketcher.Constraint("Horizontal", 15),
    Sketcher.Constraint("Vertical", 16),
    Sketcher.Constraint("Horizontal", 17),
    Sketcher.Constraint("Vertical", 18),
    Sketcher.Constraint("Horizontal", 19),
    Sketcher.Constraint("Vertical", 20),
    Sketcher.Constraint("Horizontal", 21),
    Sketcher.Constraint("Vertical", 22),
    Sketcher.Constraint("Horizontal", 2, 2, 5, 2),
    Sketcher.Constraint("Horizontal", 7, 2, 11, 2),
    Sketcher.Constraint("Horizontal", 6, 2, 12, 2),
    Sketcher.Constraint("Horizontal", 13, 2, 16, 2),
    Sketcher.Constraint("Horizontal", 11, 2, 18, 2),
    Sketcher.Constraint("Vertical", 16, 2, 19, 2),
    Sketcher.Constraint("Vertical", 14, 2, 21, 2),
    Sketcher.Constraint("Equal", 13, 17),
    Sketcher.Constraint("Equal", 3, 5),
    Sketcher.Constraint("Equal", 8, 10),
    Sketcher.Constraint("DistanceY", 12, 1, 12, 2, Q("0.5 in")),
    Sketcher.Constraint("DistanceX", 19, 2, 33, 2, Q("1 in")),
    Sketcher.Constraint("DistanceY", -1, 1, 14, 2, Q("0.0488999 in")),
    Sketcher.Constraint("DistanceX", 2, 1, 2, 2, Q("2.432131 mm")),
    Sketcher.Constraint("DistanceX", 9, 2, 9, 1, Q("3.805929 mm")),
    Sketcher.Constraint("DistanceX", 2, 2, 3, 2, Q("0.987099 mm")),
    Sketcher.Constraint("DistanceX", 5, 2, 13, 2, Q("6.586599 mm")),
    Sketcher.Constraint("DistanceX", 0, 2, 0, 1, Q("2.114123 mm")),
    Sketcher.Constraint("DistanceX", 4, 1, 4, 2, Q("5.533353 mm")),
    Sketcher.Constraint("DistanceX", 6, 1, 6, 2, Q("2.434675 mm")),
    Sketcher.Constraint("DistanceX", 11, 2, 11, 1, Q("2.279487 mm")),
    Sketcher.Constraint("DistanceX", 15, 1, 15, 2, Q("4.396154 mm")),
    Sketcher.Constraint("DistanceY", 14, 2, 14, 1, Q("5.535897 mm")),
    Sketcher.Constraint("DistanceY", 20, 1, 20, 2, Q("4.884615 mm")),
    Sketcher.Constraint("DistanceX", 8, 2, -1, 1, Q("15.925881 mm")),
    Sketcher.Constraint("DistanceY", -1, 1, 8, 2, Q("1.893339 mm")),
    Sketcher.Constraint("DistanceX", 1, 2, 0, 2, Q("5.13139 mm")),
    Sketcher.Constraint("DistanceY", 3, 2, 2, 2, Q("2.605128 mm")),
    Sketcher.Constraint("DistanceY", 0, 2, 10, 2, Q("3.40651 mm")),
])
pocket1 = body.newObject("PartDesign::Pocket", "Pocket")
pocket1.Profile = sketch2
pocket1.Length = Q("0.0625 in")
pocket1.Reversed = True

doc.recompute()
